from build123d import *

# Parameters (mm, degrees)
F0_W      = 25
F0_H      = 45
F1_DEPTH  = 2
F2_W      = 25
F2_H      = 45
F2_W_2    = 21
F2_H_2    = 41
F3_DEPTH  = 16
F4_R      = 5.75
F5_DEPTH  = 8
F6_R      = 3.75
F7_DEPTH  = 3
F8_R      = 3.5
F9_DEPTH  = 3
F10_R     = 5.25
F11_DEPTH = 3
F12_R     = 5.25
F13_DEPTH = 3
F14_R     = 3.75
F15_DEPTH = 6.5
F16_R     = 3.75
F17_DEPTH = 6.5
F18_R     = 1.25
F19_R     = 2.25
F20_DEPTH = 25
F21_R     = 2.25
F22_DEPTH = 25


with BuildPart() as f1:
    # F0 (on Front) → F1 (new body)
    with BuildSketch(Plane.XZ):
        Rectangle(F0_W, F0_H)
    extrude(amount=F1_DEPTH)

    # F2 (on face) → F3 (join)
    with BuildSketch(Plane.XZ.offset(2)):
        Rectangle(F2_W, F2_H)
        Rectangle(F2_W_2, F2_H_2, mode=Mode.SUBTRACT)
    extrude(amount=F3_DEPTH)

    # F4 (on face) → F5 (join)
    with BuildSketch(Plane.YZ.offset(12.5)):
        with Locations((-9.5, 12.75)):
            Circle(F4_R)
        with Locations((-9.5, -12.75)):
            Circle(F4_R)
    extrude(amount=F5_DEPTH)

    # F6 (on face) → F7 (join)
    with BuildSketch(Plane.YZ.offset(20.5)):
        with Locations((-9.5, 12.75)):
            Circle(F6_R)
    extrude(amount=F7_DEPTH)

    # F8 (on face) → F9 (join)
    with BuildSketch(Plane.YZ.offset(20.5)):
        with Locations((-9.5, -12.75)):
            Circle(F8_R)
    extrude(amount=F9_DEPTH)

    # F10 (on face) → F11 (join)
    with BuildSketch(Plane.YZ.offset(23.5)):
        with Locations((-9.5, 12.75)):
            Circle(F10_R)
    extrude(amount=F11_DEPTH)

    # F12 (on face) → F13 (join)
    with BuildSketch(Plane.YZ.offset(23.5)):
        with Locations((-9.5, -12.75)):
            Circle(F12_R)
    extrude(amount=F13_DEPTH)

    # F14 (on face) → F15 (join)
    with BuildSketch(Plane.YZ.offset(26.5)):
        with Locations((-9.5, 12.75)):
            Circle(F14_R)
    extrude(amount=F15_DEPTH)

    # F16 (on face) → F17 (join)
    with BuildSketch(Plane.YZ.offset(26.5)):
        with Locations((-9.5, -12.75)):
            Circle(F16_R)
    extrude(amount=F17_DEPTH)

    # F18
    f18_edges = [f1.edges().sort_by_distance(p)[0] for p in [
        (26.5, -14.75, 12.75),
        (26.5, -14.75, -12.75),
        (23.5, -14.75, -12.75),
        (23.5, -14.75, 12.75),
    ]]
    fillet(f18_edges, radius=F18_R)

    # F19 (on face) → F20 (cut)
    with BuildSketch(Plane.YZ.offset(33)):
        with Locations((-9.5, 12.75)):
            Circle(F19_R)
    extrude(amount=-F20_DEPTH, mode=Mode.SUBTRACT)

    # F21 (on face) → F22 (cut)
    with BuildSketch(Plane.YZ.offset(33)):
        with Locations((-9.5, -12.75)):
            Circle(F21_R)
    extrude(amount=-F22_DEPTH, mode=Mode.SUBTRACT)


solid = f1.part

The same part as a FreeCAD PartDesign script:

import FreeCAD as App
import Part
import Sketcher


def edges_at(feature, points):
    """Names of the edges that pass closest to the given points."""
    edges = feature.Shape.Edges
    near = lambda p: min(range(len(edges)), key=lambda i: edges[i].distToShape(Part.Vertex(*p))[0])
    return sorted({f"Edge{near(p) + 1}" for p in points})


def add_polygon(sketch, points):
    """Adds a closed chain of lines whose ends are joined by coincident constraints."""
    first, n = sketch.GeometryCount, len(points)
    for a, b in zip(points, points[1:] + points[:1]):
        sketch.addGeometry(Part.LineSegment(App.Vector(*a, 0), App.Vector(*b, 0)), False)
    for i in range(n):
        sketch.addConstraint(Sketcher.Constraint("Coincident", first + i, 2, first + (i + 1) % n, 1))

doc = App.newDocument("Part")
body = doc.addObject("PartDesign::Body", "Body")

# Sketch on XZ plane
sketch1 = body.newObject("Sketcher::SketchObject", "Sketch")
sketch1.AttachmentSupport = (doc.getObject("XZ_Plane"), [""])
sketch1.MapMode = "FlatFace"
add_polygon(sketch1, [(-12, 22), (-12, -22), (12, -22), (12, 22)])  # lines 0-3
sketch1.addConstraint([
    Sketcher.Constraint("Vertical", 0),
    Sketcher.Constraint("Horizontal", 1),
    Sketcher.Constraint("Vertical", 2),
    Sketcher.Constraint("Horizontal", 3),
    Sketcher.Constraint("Symmetric", 0, 2, 2, 2, -1, 1),
    Sketcher.Constraint("DistanceX", 1, 1, 1, 2, 25.0),
    Sketcher.Constraint("DistanceY", 0, 2, 0, 1, 45.0),
])
pad1 = body.newObject("PartDesign::Pad", "Pad")
pad1.Profile = sketch1
pad1.Length = 2

# Sketch on XZ plane
sketch2 = body.newObject("Sketcher::SketchObject", "Sketch001")
sketch2.AttachmentSupport = (doc.getObject("XZ_Plane"), [""])
sketch2.MapMode = "FlatFace"
sketch2.AttachmentOffset = App.Placement(App.Vector(0, 0, 2), App.Rotation())
add_polygon(sketch2, [(-12, 22), (-12, -22), (12, -22), (12, 22)])  # lines 0-3
add_polygon(sketch2, [(10, -20), (-10, -20), (-10, 20), (10, 20)])  # lines 4-7
sketch2.addConstraint([
    Sketcher.Constraint("Vertical", 0),
    Sketcher.Constraint("Horizontal", 1),
    Sketcher.Constraint("Vertical", 2),
    Sketcher.Constraint("Horizontal", 3),
    Sketcher.Constraint("Horizontal", 4),
    Sketcher.Constraint("Vertical", 5),
    Sketcher.Constraint("Horizontal", 6),
    Sketcher.Constraint("Vertical", 7),
    Sketcher.Constraint("Symmetric", 0, 2, 2, 2, -1, 1),
    Sketcher.Constraint("Symmetric", 4, 2, 6, 2, -1, 1),
    Sketcher.Constraint("DistanceX", 1, 1, 1, 2, 25.0),
    Sketcher.Constraint("DistanceX", 4, 2, 4, 1, 21.0),
    Sketcher.Constraint("DistanceY", 0, 2, 0, 1, 45.0),
    Sketcher.Constraint("DistanceY", 5, 1, 5, 2, 41.0),
])
pad2 = body.newObject("PartDesign::Pad", "Pad001")
pad2.Profile = sketch2
pad2.Length = 16

# Sketch on YZ plane
sketch3 = body.newObject("Sketcher::SketchObject", "Sketch002")
sketch3.AttachmentSupport = (doc.getObject("YZ_Plane"), [""])
sketch3.MapMode = "FlatFace"
sketch3.AttachmentOffset = App.Placement(App.Vector(0, 0, 12.5), App.Rotation())
sketch3.addGeometry([
    Part.Circle(App.Vector(-10, 13, 0), App.Vector(0, 0, 1), 6),
    Part.Circle(App.Vector(-10, -13, 0), App.Vector(0, 0, 1), 6),
], False)
sketch3.addConstraint([
    Sketcher.Constraint("Equal", 0, 1),
    Sketcher.Constraint("Symmetric", 0, 3, 1, 3, -1),
    Sketcher.Constraint("Diameter", 0, 11.5),
    Sketcher.Constraint("DistanceX", 0, 3, -1, 1, 9.5),
    Sketcher.Constraint("DistanceY", 1, 3, 0, 3, 25.5),
])
pad3 = body.newObject("PartDesign::Pad", "Pad002")
pad3.Profile = sketch3
pad3.Length = 8

# Sketch on YZ plane
sketch4 = body.newObject("Sketcher::SketchObject", "Sketch003")
sketch4.AttachmentSupport = (doc.getObject("YZ_Plane"), [""])
sketch4.MapMode = "FlatFace"
sketch4.AttachmentOffset = App.Placement(App.Vector(0, 0, 20.5), App.Rotation())
sketch4.addGeometry(Part.Circle(App.Vector(-9.5, 12.8, 0), App.Vector(0, 0, 1), 3.8), False)
sketch4.addConstraint([
    Sketcher.Constraint("Diameter", 0, 7.5),
    Sketcher.Constraint("DistanceX", 0, 3, -1, 1, 9.5),
    Sketcher.Constraint("DistanceY", -1, 1, 0, 3, 12.75),
])
pad4 = body.newObject("PartDesign::Pad", "Pad003")
pad4.Profile = sketch4
pad4.Length = 3

# Sketch on YZ plane
sketch5 = body.newObject("Sketcher::SketchObject", "Sketch004")
sketch5.AttachmentSupport = (doc.getObject("YZ_Plane"), [""])
sketch5.MapMode = "FlatFace"
sketch5.AttachmentOffset = App.Placement(App.Vector(0, 0, 20.5), App.Rotation())
sketch5.addGeometry(Part.Circle(App.Vector(-9.5, -12.8, 0), App.Vector(0, 0, 1), 3.5), False)
sketch5.addConstraint([
    Sketcher.Constraint("Diameter", 0, 7.0),
    Sketcher.Constraint("DistanceX", 0, 3, -1, 1, 9.5),
    Sketcher.Constraint("DistanceY", 0, 3, -1, 1, 12.75),
])
pad5 = body.newObject("PartDesign::Pad", "Pad004")
pad5.Profile = sketch5
pad5.Length = 3

# Sketch on YZ plane
sketch6 = body.newObject("Sketcher::SketchObject", "Sketch005")
sketch6.AttachmentSupport = (doc.getObject("YZ_Plane"), [""])
sketch6.MapMode = "FlatFace"
sketch6.AttachmentOffset = App.Placement(App.Vector(0, 0, 23.5), App.Rotation())
sketch6.addGeometry(Part.Circle(App.Vector(-10, 13, 0), App.Vector(0, 0, 1), 5), False)
sketch6.addConstraint([
    Sketcher.Constraint("Diameter", 0, 10.5),
    Sketcher.Constraint("DistanceX", 0, 3, -1, 1, 9.5),
    Sketcher.Constraint("DistanceY", -1, 1, 0, 3, 12.75),
])
pad6 = body.newObject("PartDesign::Pad", "Pad005")
pad6.Profile = sketch6
pad6.Length = 3

# Sketch on YZ plane
sketch7 = body.newObject("Sketcher::SketchObject", "Sketch006")
sketch7.AttachmentSupport = (doc.getObject("YZ_Plane"), [""])
sketch7.MapMode = "FlatFace"
sketch7.AttachmentOffset = App.Placement(App.Vector(0, 0, 23.5), App.Rotation())
sketch7.addGeometry(Part.Circle(App.Vector(-10, -13, 0), App.Vector(0, 0, 1), 5), False)
sketch7.addConstraint([
    Sketcher.Constraint("Diameter", 0, 10.5),
    Sketcher.Constraint("DistanceX", 0, 3, -1, 1, 9.5),
    Sketcher.Constraint("DistanceY", 0, 3, -1, 1, 12.75),
])
pad7 = body.newObject("PartDesign::Pad", "Pad006")
pad7.Profile = sketch7
pad7.Length = 3

# Sketch on YZ plane
sketch8 = body.newObject("Sketcher::SketchObject", "Sketch007")
sketch8.AttachmentSupport = (doc.getObject("YZ_Plane"), [""])
sketch8.MapMode = "FlatFace"
sketch8.AttachmentOffset = App.Placement(App.Vector(0, 0, 26.5), App.Rotation())
sketch8.addGeometry(Part.Circle(App.Vector(-9.5, 12.8, 0), App.Vector(0, 0, 1), 3.8), False)
sketch8.addConstraint([
    Sketcher.Constraint("Diameter", 0, 7.5),
    Sketcher.Constraint("DistanceX", 0, 3, -1, 1, 9.5),
    Sketcher.Constraint("DistanceY", -1, 1, 0, 3, 12.75),
])
pad8 = body.newObject("PartDesign::Pad", "Pad007")
pad8.Profile = sketch8
pad8.Length = 6.5

# Sketch on YZ plane
sketch9 = body.newObject("Sketcher::SketchObject", "Sketch008")
sketch9.AttachmentSupport = (doc.getObject("YZ_Plane"), [""])
sketch9.MapMode = "FlatFace"
sketch9.AttachmentOffset = App.Placement(App.Vector(0, 0, 26.5), App.Rotation())
sketch9.addGeometry(Part.Circle(App.Vector(-9.5, -12.8, 0), App.Vector(0, 0, 1), 3.8), False)
sketch9.addConstraint([
    Sketcher.Constraint("Diameter", 0, 7.5),
    Sketcher.Constraint("DistanceX", 0, 3, -1, 1, 9.5),
    Sketcher.Constraint("DistanceY", 0, 3, -1, 1, 12.75),
])
pad9 = body.newObject("PartDesign::Pad", "Pad008")
pad9.Profile = sketch9
pad9.Length = 6.5
doc.recompute()

fillet = body.newObject("PartDesign::Fillet", "Fillet")
fillet.Base = (pad9, edges_at(pad9, [
    (26.5, -14.75, 12.75),
    (26.5, -14.75, -12.75),
    (23.5, -14.75, -12.75),
    (23.5, -14.75, 12.75),
]))
fillet.Radius = 1.25

# Sketch on YZ plane
sketch10 = body.newObject("Sketcher::SketchObject", "Sketch009")
sketch10.AttachmentSupport = (doc.getObject("YZ_Plane"), [""])
sketch10.MapMode = "FlatFace"
sketch10.AttachmentOffset = App.Placement(App.Vector(0, 0, 33), App.Rotation())
sketch10.addGeometry(Part.Circle(App.Vector(-9.5, 12.8, 0), App.Vector(0, 0, 1), 2.2), False)
sketch10.addConstraint([
    Sketcher.Constraint("Diameter", 0, 4.5),
    Sketcher.Constraint("DistanceX", 0, 3, -1, 1, 9.5),
    Sketcher.Constraint("DistanceY", -1, 1, 0, 3, 12.75),
])
pocket1 = body.newObject("PartDesign::Pocket", "Pocket")
pocket1.Profile = sketch10
pocket1.Length = 25

# Sketch on YZ plane
sketch11 = body.newObject("Sketcher::SketchObject", "Sketch010")
sketch11.AttachmentSupport = (doc.getObject("YZ_Plane"), [""])
sketch11.MapMode = "FlatFace"
sketch11.AttachmentOffset = App.Placement(App.Vector(0, 0, 33), App.Rotation())
sketch11.addGeometry(Part.Circle(App.Vector(-9.5, -12.8, 0), App.Vector(0, 0, 1), 2.2), False)
sketch11.addConstraint([
    Sketcher.Constraint("Diameter", 0, 4.5),
    Sketcher.Constraint("DistanceX", 0, 3, -1, 1, 9.5),
    Sketcher.Constraint("DistanceY", 0, 3, -1, 1, 12.75),
])
pocket2 = body.newObject("PartDesign::Pocket", "Pocket001")
pocket2.Profile = sketch11
pocket2.Length = 25

doc.recompute()
